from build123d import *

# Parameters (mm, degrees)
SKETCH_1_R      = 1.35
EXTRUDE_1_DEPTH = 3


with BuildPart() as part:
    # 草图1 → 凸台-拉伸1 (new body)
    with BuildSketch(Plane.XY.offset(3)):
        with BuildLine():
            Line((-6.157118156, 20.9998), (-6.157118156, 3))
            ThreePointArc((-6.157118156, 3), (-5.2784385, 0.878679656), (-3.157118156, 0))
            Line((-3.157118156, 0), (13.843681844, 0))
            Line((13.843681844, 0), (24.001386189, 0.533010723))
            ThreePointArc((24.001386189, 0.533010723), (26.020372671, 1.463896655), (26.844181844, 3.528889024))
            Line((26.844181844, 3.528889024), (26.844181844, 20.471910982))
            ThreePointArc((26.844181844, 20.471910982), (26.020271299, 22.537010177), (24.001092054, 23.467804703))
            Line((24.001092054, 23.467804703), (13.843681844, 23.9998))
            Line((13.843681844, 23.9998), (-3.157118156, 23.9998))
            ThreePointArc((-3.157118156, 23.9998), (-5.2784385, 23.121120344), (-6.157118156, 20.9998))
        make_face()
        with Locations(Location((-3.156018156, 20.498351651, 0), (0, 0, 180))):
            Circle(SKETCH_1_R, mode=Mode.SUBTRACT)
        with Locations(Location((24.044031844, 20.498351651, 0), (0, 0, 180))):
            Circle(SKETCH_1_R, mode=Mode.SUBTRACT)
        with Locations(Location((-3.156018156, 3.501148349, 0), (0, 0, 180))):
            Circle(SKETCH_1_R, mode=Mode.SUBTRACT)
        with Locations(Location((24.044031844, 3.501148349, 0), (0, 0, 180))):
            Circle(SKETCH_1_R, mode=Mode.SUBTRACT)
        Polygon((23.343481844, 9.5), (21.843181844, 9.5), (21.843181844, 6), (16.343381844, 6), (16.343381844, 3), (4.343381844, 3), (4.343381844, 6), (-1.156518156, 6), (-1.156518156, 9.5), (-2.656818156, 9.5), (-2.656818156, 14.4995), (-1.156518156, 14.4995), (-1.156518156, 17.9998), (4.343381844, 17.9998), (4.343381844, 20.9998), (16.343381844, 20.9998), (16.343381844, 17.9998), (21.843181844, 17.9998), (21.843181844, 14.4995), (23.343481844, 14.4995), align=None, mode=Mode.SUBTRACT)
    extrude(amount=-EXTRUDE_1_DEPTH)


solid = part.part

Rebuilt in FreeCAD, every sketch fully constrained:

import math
import FreeCAD as App
import Part
import Sketcher


def add_polygon(sketch, points):
    """Adds a closed chain of lines whose ends are joined by coincident constraints."""
    first, n = sketch.GeometryCount, len(points)
    for a, b in zip(points, points[1:] + points[:1]):
        sketch.addGeometry(Part.LineSegment(App.Vector(*a, 0), App.Vector(*b, 0)), False)
    for i in range(n):
        sketch.addConstraint(Sketcher.Constraint("Coincident", first + i, 2, first + (i + 1) % n, 1))

doc = App.newDocument("Part")
body = doc.addObject("PartDesign::Body", "Body")

sketch1 = doc.addObject("Sketcher::SketchObject", "Sketch")
body.addObject(sketch1)
sketch1.AttachmentSupport = (doc.XY_Plane, [""])
sketch1.MapMode = "FlatFace"
sketch1.AttachmentOffset = App.Placement(App.Vector(0, 0, 3), App.Rotation())
sketch1.addGeometry(Part.LineSegment(App.Vector(-6.157118, 20.9998, 0), App.Vector(-6.157118, 3, 0)), False)
sketch1.addGeometry(Part.ArcOfCircle(Part.Circle(App.Vector(-3.157118, 3, 0), App.Vector(0, 0, 1), 3), math.radians(180), math.radians(270)), False)
sketch1.addGeometry(Part.LineSegment(App.Vector(-3.157118, 0, 0), App.Vector(13.843682, 0, 0)), False)
sketch1.addGeometry(Part.LineSegment(App.Vector(13.843682, 0, 0), App.Vector(24.001386, 0.533011, 0)), False)
sketch1.addGeometry(Part.ArcOfCircle(Part.Circle(App.Vector(23.844182, 3.528889, 0), App.Vector(0, 0, 1), 3), math.radians(-86.996242), math.radians(0)), False)
sketch1.addGeometry(Part.LineSegment(App.Vector(26.844182, 3.528889, 0), App.Vector(26.844182, 20.471911, 0)), False)
sketch1.addGeometry(Part.ArcOfCircle(Part.Circle(App.Vector(23.844182, 20.471911, 0), App.Vector(0, 0, 1), 3), math.radians(0), math.radians(87.001868)), False)
sketch1.addGeometry(Part.LineSegment(App.Vector(24.001092, 23.467805, 0), App.Vector(13.843682, 23.9998, 0)), False)
sketch1.addGeometry(Part.LineSegment(App.Vector(13.843682, 23.9998, 0), App.Vector(-3.157118, 23.9998, 0)), False)
sketch1.addGeometry(Part.ArcOfCircle(Part.Circle(App.Vector(-3.157118, 20.9998, 0), App.Vector(0, 0, 1), 3), math.radians(90), math.radians(180)), False)
sketch1.addGeometry(Part.Circle(App.Vector(-3.156018, 3.501148, 0), App.Vector(0, 0, 1), 1.35), False)
sketch1.addGeometry(Part.Circle(App.Vector(24.044032, 3.501148, 0), App.Vector(0, 0, 1), 1.35), False)
add_polygon(sketch1, [(23.343482, 14.4995), (23.343482, 9.5), (21.843182, 9.5), (21.843182, 6), (16.343382, 6), (16.343382, 3), (4.343382, 3), (4.343382, 6), (-1.156518, 6), (-1.156518, 9.5), (-2.656818, 9.5), (-2.656818, 14.4995), (-1.156518, 14.4995), (-1.156518, 17.9998), (4.343382, 17.9998), (4.343382, 20.9998), (16.343382, 20.9998), (16.343382, 17.9998), (21.843182, 17.9998), (21.843182, 14.4995)])
sketch1.addGeometry(Part.Circle(App.Vector(-3.156018, 20.498352, 0), App.Vector(0, 0, 1), 1.35), False)
sketch1.addGeometry(Part.Circle(App.Vector(24.044032, 20.498352, 0), App.Vector(0, 0, 1), 1.35), False)
sketch1.addConstraint(Sketcher.Constraint("Coincident", 0, 2, 1, 1))
sketch1.addConstraint(Sketcher.Constraint("Coincident", 1, 2, 2, 1))
sketch1.addConstraint(Sketcher.Constraint("Coincident", 2, 2, 3, 1))
sketch1.addConstraint(Sketcher.Constraint("Coincident", 3, 2, 4, 1))
sketch1.addConstraint(Sketcher.Constraint("Coincident", 4, 2, 5, 1))
sketch1.addConstraint(Sketcher.Constraint("Coincident", 5, 2, 6, 1))
sketch1.addConstraint(Sketcher.Constraint("Coincident", 6, 2, 7, 1))
sketch1.addConstraint(Sketcher.Constraint("Coincident", 7, 2, 8, 1))
sketch1.addConstraint(Sketcher.Constraint("Coincident", 8, 2, 9, 1))
sketch1.addConstraint(Sketcher.Constraint("Coincident", 9, 2, 0, 1))
sketch1.addConstraint(Sketcher.Constraint("Vertical", 0))
sketch1.addConstraint(Sketcher.Constraint("Horizontal", 2))
sketch1.addConstraint(Sketcher.Constraint("Vertical", 5))
sketch1.addConstraint(Sketcher.Constraint("Horizontal", 8))
sketch1.addConstraint(Sketcher.Constraint("Vertical", 12))
sketch1.addConstraint(Sketcher.Constraint("Horizontal", 13))
sketch1.addConstraint(Sketcher.Constraint("Vertical", 14))
sketch1.addConstraint(Sketcher.Constraint("Horizontal", 15))
sketch1.addConstraint(Sketcher.Constraint("Vertical", 16))
sketch1.addConstraint(Sketcher.Constraint("Horizontal", 17))
sketch1.addConstraint(Sketcher.Constraint("Vertical", 18))
sketch1.addConstraint(Sketcher.Constraint("Horizontal", 19))
sketch1.addConstraint(Sketcher.Constraint("Vertical", 20))
sketch1.addConstraint(Sketcher.Constraint("Horizontal", 21))
sketch1.addConstraint(Sketcher.Constraint("Vertical", 22))
sketch1.addConstraint(Sketcher.Constraint("Horizontal", 23))
sketch1.addConstraint(Sketcher.Constraint("Vertical", 24))
sketch1.addConstraint(Sketcher.Constraint("Horizontal", 25))
sketch1.addConstraint(Sketcher.Constraint("Vertical", 26))
sketch1.addConstraint(Sketcher.Constraint("Horizontal", 27))
sketch1.addConstraint(Sketcher.Constraint("Vertical", 28))
sketch1.addConstraint(Sketcher.Constraint("Horizontal", 29))
sketch1.addConstraint(Sketcher.Constraint("Vertical", 30))
sketch1.addConstraint(Sketcher.Constraint("Horizontal", 31))
sketch1.addConstraint(Sketcher.Constraint("PointOnObject", 1, 2, -1))
sketch1.addConstraint(Sketcher.Constraint("Radius", 1, 3.0))
sketch1.addConstraint(Sketcher.Constraint("Radius", 4, 3.0))
sketch1.addConstraint(Sketcher.Constraint("Radius", 6, 3.0))
sketch1.addConstraint(Sketcher.Constraint("Radius", 9, 3.0))
sketch1.addConstraint(Sketcher.Constraint("Diameter", 10, 2.7))
sketch1.addConstraint(Sketcher.Constraint("Diameter", 11, 2.7))
sketch1.addConstraint(Sketcher.Constraint("Diameter", 32, 2.7))
sketch1.addConstraint(Sketcher.Constraint("Diameter", 33, 2.7))
sketch1.addConstraint(Sketcher.Constraint("DistanceX", 17, 2, 17, 1, 12.0))
sketch1.addConstraint(Sketcher.Constraint("DistanceX", 27, 1, 27, 2, 12.0))
sketch1.addConstraint(Sketcher.Constraint("DistanceY", 16, 2, 16, 1, 3.0))
sketch1.addConstraint(Sketcher.Constraint("DistanceY", 18, 1, 18, 2, 3.0))
sketch1.addConstraint(Sketcher.Constraint("DistanceY", 26, 1, 26, 2, 3.0))
sketch1.addConstraint(Sketcher.Constraint("DistanceY", 28, 2, 28, 1, 3.0))
sketch1.addConstraint(Sketcher.Constraint("DistanceY", 14, 2, 14, 1, 3.5))
sketch1.addConstraint(Sketcher.Constraint("DistanceY", 20, 1, 20, 2, 3.5))
sketch1.addConstraint(Sketcher.Constraint("DistanceY", -1, 1, 0, 2, 3.0))
sketch1.addConstraint(Sketcher.Constraint("DistanceY", -1, 1, 14, 2, 6.0))
sketch1.addConstraint(Sketcher.Constraint("DistanceX", 0, 2, 1, 2, 3.0))
sketch1.addConstraint(Sketcher.Constraint("DistanceX", 9, 2, 8, 2, 3.0))
sketch1.addConstraint(Sketcher.Constraint("DistanceY", 9, 2, 8, 2, 3.0))
sketch1.addConstraint(Sketcher.Constraint("DistanceY", 24, 2, 9, 3, 3.0))
sketch1.addConstraint(Sketcher.Constraint("DistanceX", 2, 1, 2, 2, 17.0008))
sketch1.addConstraint(Sketcher.Constraint("DistanceX", 8, 2, 8, 1, 17.0008))
sketch1.addConstraint(Sketcher.Constraint("DistanceX", 13, 2, 13, 1, 1.5003))
sketch1.addConstraint(Sketcher.Constraint("DistanceX", 15, 2, 15, 1, 5.4998))
sketch1.addConstraint(Sketcher.Constraint("DistanceX", 19, 2, 19, 1, 5.4999))
sketch1.addConstraint(Sketcher.Constraint("DistanceX", 21, 2, 21, 1, 1.5003))
sketch1.addConstraint(Sketcher.Constraint("DistanceX", 23, 1, 23, 2, 1.5003))
sketch1.addConstraint(Sketcher.Constraint("DistanceX", 25, 1, 25, 2, 5.4999))
sketch1.addConstraint(Sketcher.Constraint("DistanceX", 29, 1, 29, 2, 5.4998))
sketch1.addConstraint(Sketcher.Constraint("DistanceY", 0, 2, 0, 1, 17.9998))
sketch1.addConstraint(Sketcher.Constraint("DistanceY", 12, 2, 12, 1, 4.9995))
sketch1.addConstraint(Sketcher.Constraint("DistanceY", 22, 1, 22, 2, 4.9995))
sketch1.addConstraint(Sketcher.Constraint("DistanceX", 13, 2, 4, 3, 2.001))
sketch1.addConstraint(Sketcher.Constraint("DistanceY", 5, 1, 5, 2, 16.943022))
sketch1.addConstraint(Sketcher.Constraint("DistanceX", 1, 3, 4, 3, 27.0013))
sketch1.addConstraint(Sketcher.Constraint("DistanceX", 1, 3, 10, 3, 0.0011))
sketch1.addConstraint(Sketcher.Constraint("DistanceX", 9, 3, 32, 3, 0.0011))
sketch1.addConstraint(Sketcher.Constraint("DistanceY", 3, 2, 6, 3, 19.9389))
sketch1.addConstraint(Sketcher.Constraint("Distance", 3, 10.171679))
sketch1.addConstraint(Sketcher.Constraint("DistanceX", 1, 3, -1, 1, 3.157118))
sketch1.addConstraint(Sketcher.Constraint("DistanceY", -1, 1, 4, 3, 3.528889))
sketch1.addConstraint(Sketcher.Constraint("DistanceY", -1, 1, 10, 3, 3.501148))
sketch1.addConstraint(Sketcher.Constraint("DistanceX", -1, 1, 11, 3, 24.044032))
sketch1.addConstraint(Sketcher.Constraint("DistanceY", -1, 1, 11, 3, 3.501148))
sketch1.addConstraint(Sketcher.Constraint("DistanceY", -1, 1, 32, 3, 20.498352))
sketch1.addConstraint(Sketcher.Constraint("DistanceX", -1, 1, 33, 3, 24.044032))
sketch1.addConstraint(Sketcher.Constraint("DistanceY", -1, 1, 33, 3, 20.498352))
sketch1.addConstraint(Sketcher.Constraint("DistanceY", -1, 1, 4, 2, 3.528889))
sketch1.addConstraint(Sketcher.Constraint("DistanceX", 6, 2, 33, 3, 0.04294))
pad1 = doc.addObject("PartDesign::Pad", "Pad")
body.addObject(pad1)
pad1.Profile = sketch1
pad1.Length = 3
pad1.Reversed = True

doc.recompute()
